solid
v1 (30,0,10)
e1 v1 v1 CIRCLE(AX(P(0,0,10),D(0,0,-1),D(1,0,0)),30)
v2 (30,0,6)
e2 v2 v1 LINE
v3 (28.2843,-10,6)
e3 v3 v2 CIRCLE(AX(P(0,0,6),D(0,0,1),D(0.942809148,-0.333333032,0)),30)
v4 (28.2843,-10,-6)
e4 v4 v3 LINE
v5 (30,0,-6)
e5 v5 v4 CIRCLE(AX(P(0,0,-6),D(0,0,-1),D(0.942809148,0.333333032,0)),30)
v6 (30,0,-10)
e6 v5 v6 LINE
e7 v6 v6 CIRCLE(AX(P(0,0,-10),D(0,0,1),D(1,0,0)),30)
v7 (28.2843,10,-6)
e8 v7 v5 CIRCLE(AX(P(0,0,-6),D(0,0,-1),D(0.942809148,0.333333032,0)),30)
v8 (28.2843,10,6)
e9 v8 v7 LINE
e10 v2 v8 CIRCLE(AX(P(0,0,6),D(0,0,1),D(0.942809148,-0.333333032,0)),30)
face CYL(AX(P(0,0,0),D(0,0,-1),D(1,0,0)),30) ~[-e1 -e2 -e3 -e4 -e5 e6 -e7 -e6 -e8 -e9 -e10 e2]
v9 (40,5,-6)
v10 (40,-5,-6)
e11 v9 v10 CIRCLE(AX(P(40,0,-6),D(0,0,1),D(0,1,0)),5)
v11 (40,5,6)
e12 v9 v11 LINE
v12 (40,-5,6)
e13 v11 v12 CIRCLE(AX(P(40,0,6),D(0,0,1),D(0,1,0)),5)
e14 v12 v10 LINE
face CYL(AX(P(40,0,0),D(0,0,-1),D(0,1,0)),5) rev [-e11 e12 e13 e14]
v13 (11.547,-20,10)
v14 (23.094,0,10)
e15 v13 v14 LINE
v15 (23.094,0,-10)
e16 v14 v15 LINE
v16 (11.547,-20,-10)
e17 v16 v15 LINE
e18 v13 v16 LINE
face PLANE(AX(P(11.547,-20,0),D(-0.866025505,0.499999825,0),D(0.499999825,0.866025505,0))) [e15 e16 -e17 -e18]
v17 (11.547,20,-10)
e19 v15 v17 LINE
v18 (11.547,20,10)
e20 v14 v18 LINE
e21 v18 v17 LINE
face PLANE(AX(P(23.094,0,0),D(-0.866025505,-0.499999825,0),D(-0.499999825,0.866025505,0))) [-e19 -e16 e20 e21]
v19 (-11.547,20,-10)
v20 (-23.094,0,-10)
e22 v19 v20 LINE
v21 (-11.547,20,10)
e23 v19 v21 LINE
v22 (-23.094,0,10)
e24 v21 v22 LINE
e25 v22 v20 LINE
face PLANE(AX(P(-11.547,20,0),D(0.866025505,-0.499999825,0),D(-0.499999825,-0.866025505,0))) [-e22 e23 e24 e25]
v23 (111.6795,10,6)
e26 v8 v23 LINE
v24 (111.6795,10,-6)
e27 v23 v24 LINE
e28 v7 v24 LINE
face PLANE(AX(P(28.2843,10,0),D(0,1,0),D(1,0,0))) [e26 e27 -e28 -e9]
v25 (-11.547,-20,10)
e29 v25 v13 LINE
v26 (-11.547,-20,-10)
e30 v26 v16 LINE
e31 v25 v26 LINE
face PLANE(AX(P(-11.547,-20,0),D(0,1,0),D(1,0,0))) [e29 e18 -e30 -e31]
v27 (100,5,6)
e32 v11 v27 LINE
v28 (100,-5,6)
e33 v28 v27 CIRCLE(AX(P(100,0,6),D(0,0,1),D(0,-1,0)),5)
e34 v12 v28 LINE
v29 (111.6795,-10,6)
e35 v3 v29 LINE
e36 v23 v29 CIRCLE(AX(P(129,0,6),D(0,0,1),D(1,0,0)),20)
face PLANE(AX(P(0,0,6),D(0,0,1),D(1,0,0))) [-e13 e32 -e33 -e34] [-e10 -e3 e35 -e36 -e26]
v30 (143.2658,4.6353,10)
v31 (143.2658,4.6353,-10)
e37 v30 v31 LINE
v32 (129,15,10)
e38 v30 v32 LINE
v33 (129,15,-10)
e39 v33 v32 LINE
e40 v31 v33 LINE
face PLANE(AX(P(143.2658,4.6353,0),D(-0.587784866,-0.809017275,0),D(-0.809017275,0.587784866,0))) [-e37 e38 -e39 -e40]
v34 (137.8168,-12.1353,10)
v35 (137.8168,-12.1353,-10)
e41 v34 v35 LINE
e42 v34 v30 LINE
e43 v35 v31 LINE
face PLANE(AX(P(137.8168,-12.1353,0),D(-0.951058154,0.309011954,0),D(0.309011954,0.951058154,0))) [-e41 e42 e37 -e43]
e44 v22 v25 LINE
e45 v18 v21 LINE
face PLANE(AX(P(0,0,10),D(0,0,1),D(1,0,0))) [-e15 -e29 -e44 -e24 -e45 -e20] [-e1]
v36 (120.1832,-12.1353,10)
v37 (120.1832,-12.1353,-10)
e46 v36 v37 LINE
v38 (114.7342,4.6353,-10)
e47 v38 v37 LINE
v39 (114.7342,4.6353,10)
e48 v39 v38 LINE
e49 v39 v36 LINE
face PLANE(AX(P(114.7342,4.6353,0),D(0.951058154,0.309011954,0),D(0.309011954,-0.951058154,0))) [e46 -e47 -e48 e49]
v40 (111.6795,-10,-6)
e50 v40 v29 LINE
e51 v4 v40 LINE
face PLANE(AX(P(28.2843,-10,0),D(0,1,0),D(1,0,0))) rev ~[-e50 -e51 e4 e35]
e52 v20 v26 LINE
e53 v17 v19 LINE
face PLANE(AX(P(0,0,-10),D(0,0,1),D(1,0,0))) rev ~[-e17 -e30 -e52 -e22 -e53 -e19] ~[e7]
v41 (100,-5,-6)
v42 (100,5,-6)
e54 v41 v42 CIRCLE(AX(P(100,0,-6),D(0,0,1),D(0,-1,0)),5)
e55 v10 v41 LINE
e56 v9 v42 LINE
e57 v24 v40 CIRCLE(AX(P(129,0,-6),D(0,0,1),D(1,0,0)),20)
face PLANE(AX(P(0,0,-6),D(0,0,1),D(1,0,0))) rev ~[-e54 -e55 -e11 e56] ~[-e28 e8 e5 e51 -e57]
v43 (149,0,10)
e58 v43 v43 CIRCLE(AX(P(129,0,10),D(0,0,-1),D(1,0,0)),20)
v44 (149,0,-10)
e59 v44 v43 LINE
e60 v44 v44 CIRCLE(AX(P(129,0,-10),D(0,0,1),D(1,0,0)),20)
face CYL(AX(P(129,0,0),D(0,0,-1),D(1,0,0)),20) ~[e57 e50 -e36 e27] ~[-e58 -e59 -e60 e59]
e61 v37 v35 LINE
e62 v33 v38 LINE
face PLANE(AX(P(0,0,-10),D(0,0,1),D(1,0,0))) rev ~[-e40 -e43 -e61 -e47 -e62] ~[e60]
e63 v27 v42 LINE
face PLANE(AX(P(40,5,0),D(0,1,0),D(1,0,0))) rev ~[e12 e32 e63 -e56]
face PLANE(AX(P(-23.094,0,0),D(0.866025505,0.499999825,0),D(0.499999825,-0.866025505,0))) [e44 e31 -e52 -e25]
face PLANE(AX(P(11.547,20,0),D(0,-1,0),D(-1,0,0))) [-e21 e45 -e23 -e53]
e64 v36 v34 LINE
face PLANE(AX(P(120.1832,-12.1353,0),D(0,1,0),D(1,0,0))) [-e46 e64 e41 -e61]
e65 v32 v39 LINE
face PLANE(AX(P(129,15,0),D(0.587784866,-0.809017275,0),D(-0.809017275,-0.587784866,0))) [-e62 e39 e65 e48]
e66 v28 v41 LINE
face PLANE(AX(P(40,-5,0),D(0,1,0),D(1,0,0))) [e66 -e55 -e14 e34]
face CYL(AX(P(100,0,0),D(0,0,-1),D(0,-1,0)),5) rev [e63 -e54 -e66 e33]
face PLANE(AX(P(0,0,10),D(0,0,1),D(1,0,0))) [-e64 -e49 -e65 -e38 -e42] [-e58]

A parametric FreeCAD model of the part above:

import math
import FreeCAD as App
import Part
import Sketcher

V = App.Vector
Q = App.Units.Quantity


def add_polygon(sketch, points):
    """Adds a closed chain of lines whose ends are joined by coincident constraints."""
    first, n = sketch.GeometryCount, len(points)
    for a, b in zip(points, points[1:] + points[:1]):
        sketch.addGeometry(Part.LineSegment(App.Vector(*a, 0), App.Vector(*b, 0)), False)
    for i in range(n):
        sketch.addConstraint(Sketcher.Constraint("Coincident", first + i, 2, first + (i + 1) % n, 1))

doc = App.newDocument("Part")
params = doc.addObject("Spreadsheet::Sheet", "Params")
for row, (alias, value) in enumerate([
    ("sketch1_diameter", "60 mm"),
    ("sketch1_diameter2", "40 mm"),
    ("pad1_length", "20 mm"),
    ("sketch2_radius", "30 mm"),
    ("sketch2_radius2", "20 mm"),
    ("sketch2_width", "60 mm"),
    ("sketch2_radius3", "5 mm"),
    ("pad2_length", "12 mm"),
], start=1):
    params.set(f"A{row}", alias)
    params.set(f"B{row}", "=" + value)
    params.setAlias(f"B{row}", alias)

body = doc.addObject("PartDesign::Body", "Body")
body.AllowCompound = True

sketch1 = body.newObject("Sketcher::SketchObject", "Sketch")
sketch1.AttachmentSupport = (doc.getObject("XY_Plane"), [""])
sketch1.MapMode = "FlatFace"
sketch1.addGeometry(Part.Circle(V(0, 0, 0), V(0, 0, 1), 30), False)
add_polygon(sketch1, [(-23, 0), (-12, 20), (12, 20), (23, 0), (12, -20), (-12, -20)])
sketch1.addGeometry(Part.Circle(V(129, 0, 0), V(0, 0, 1), 20), False)
add_polygon(sketch1, [(115, 5), (129, 15), (143, 5), (138, -12), (120, -12)])
sketch1.addConstraint([
    Sketcher.Constraint("Horizontal", 2),
    Sketcher.Constraint("Horizontal", 5),
    Sketcher.Constraint("Horizontal", 11),
    Sketcher.Constraint("Coincident", 0, 3, -1, 1),
    Sketcher.Constraint("Symmetric", 1, 2, 4, 2, -1, 1),
    Sketcher.Constraint("Symmetric", 3, 2, 6, 2, -1, 1),
    Sketcher.Constraint("PointOnObject", 7, 3, -1),
    Sketcher.Constraint("PointOnObject", 3, 2, -1),
    Sketcher.Constraint("Parallel", 3, 6),
    Sketcher.Constraint("Horizontal", 9, 2, 12, 2),
    Sketcher.Constraint("Vertical", 2, 2, 4, 2),
    Sketcher.Constraint("Vertical", 7, 3, 8, 2),
    Sketcher.Constraint("Equal", 8, 9),
    Sketcher.Constraint("Equal", 9, 10),
    Sketcher.Constraint("Equal", 10, 12),
    Sketcher.Constraint("Diameter", 0, 60.0),
    Sketcher.Constraint("Diameter", 7, 40.0),
    Sketcher.Constraint("Angle", 1, Q("60 deg")),
    Sketcher.Constraint("DistanceX", -1, 1, 7, 3, 129.0),
    Sketcher.Constraint("DistanceY", -1, 1, 1, 2, 20.0),
    Sketcher.Constraint("DistanceY", -1, 1, 8, 2, 15.0),
    Sketcher.Constraint("Angle", 8, Q("36 deg")),
    Sketcher.Constraint("Angle", 10, Q("-107.9997 deg")),
    Sketcher.Constraint("DistanceX", 2, 1, 2, 2, 23.094),
    Sketcher.Constraint("DistanceX", 11, 2, 11, 1, 17.6336),
])
sketch1.setExpression("Constraints[26]", "Params.sketch1_diameter")
sketch1.setExpression("Constraints[27]", "Params.sketch1_diameter2")
pad1 = body.newObject("PartDesign::Pad", "Pad")
pad1.Profile = sketch1
pad1.setExpression("Length", "Params.pad1_length")
pad1.Midplane = True

sketch2 = body.newObject("Sketcher::SketchObject", "Sketch001")
sketch2.AttachmentSupport = (doc.getObject("XY_Plane"), [""])
sketch2.MapMode = "FlatFace"
sketch2.addGeometry([
    Part.ArcOfCircle(Part.Circle(V(0, 0, 0), V(0, 0, 1), 30), math.radians(-19), math.radians(19)),
    Part.LineSegment(V(28, -10, 0), V(112, -10, 0)),
    Part.ArcOfCircle(Part.Circle(V(129, 0, 0), V(0, 0, 1), 20), math.radians(150), math.radians(210)),
    Part.LineSegment(V(112, 10, 0), V(28, 10, 0)),
    Part.ArcOfCircle(Part.Circle(V(40, 0, 0), V(0, 0, 1), 5), math.radians(90), math.radians(270)),
    Part.LineSegment(V(40, 5, 0), V(100, 5, 0)),
    Part.ArcOfCircle(Part.Circle(V(100, 0, 0), V(0, 0, 1), 5), math.radians(-90), math.radians(90)),
    Part.LineSegment(V(100, -5, 0), V(40, -5, 0)),
], False)
sketch2.addConstraint([
    Sketcher.Constraint("Coincident", 0, 1, 1, 1),
    Sketcher.Constraint("Coincident", 1, 2, 2, 2),
    Sketcher.Constraint("Coincident", 2, 1, 3, 1),
    Sketcher.Constraint("Coincident", 3, 2, 0, 2),
    Sketcher.Constraint("Tangent", 4, 1, 5, 1),
    Sketcher.Constraint("Tangent", 5, 2, 6, 2),
    Sketcher.Constraint("Tangent", 6, 1, 7, 1),
    Sketcher.Constraint("Tangent", 7, 2, 4, 2),
    Sketcher.Constraint("Horizontal", 1),
    Sketcher.Constraint("Horizontal", 3),
    Sketcher.Constraint("Horizontal", 5),
    Sketcher.Constraint("Horizontal", 7),
    Sketcher.Constraint("Coincident", 0, 3, -1, 1),
    Sketcher.Constraint("Symmetric", 1, 2, 2, 1, -1),
    Sketcher.Constraint("PointOnObject", 4, 3, -1),
    Sketcher.Constraint("Radius", 0, 30.0),
    Sketcher.Constraint("Radius", 2, 20.0),
    Sketcher.Constraint("DistanceX", 5, 1, 5, 2, 60.0),
    Sketcher.Constraint("DistanceX", -1, 1, 2, 3, 129.0),
    Sketcher.Constraint("DistanceX", -1, 1, 4, 3, 40.0),
    Sketcher.Constraint("Radius", 4, 5.0),
    Sketcher.Constraint("DistanceY", 1, 2, 2, 1, 20.0),
])
sketch2.setExpression("Constraints[15]", "Params.sketch2_radius")
sketch2.setExpression("Constraints[16]", "Params.sketch2_radius2")
sketch2.setExpression("Constraints[17]", "Params.sketch2_width")
sketch2.setExpression("Constraints[20]", "Params.sketch2_radius3")
pad2 = body.newObject("PartDesign::Pad", "Pad001")
pad2.Profile = sketch2
pad2.setExpression("Length", "Params.pad2_length")
pad2.Midplane = True

doc.recompute()
